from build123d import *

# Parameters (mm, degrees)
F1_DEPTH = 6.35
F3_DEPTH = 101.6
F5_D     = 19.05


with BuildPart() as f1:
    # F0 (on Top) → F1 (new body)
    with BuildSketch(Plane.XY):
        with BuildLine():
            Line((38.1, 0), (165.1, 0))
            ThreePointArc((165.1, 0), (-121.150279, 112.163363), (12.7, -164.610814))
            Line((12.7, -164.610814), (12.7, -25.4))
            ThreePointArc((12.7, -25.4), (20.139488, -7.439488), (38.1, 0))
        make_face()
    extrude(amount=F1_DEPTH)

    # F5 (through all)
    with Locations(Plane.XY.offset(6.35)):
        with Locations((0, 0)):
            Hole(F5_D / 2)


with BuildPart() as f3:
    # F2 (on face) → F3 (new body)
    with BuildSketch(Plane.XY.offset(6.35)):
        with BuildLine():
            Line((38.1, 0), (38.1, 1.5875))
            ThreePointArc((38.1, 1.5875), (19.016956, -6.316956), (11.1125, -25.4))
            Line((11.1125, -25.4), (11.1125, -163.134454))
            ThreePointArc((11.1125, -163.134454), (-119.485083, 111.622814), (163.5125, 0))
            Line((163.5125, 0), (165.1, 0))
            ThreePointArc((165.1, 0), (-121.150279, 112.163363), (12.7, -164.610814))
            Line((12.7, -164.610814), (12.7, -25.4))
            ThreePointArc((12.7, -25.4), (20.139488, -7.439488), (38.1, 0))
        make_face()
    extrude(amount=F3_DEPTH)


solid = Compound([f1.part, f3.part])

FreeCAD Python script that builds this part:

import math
import FreeCAD as App
import Part
import Sketcher
from FreeCAD import Vector
Q = App.Units.Quantity

doc = App.newDocument("Part")
params = doc.addObject("Spreadsheet::Sheet", "Params")
for row, (alias, value) in enumerate([
    ("sketch1_radius", "1 in"),
    ("sketch1_radius2", "6.5 in"),
    ("sketch1_width", "5 in"),
    ("pad1_length", "0.25 in"),
    ("sketch2_diameter", "0.75 in"),
    ("hole_diameter", "0.75 in"),
    ("sketch3_radius", "1 in"),
    ("sketch3_radius2", "6.5 in"),
    ("sketch3_radius3", "1.0625 in"),
    ("pad2_length", "4 in"),
], start=1):
    params.set(f"A{row}", alias)
    params.set(f"B{row}", "=" + value)
    params.setAlias(f"B{row}", alias)

body = doc.addObject("PartDesign::Body", "Body")

sketch1 = body.newObject("Sketcher::SketchObject", "Sketch")
sketch1.AttachmentSupport = (doc.getObject("XY_Plane"), [""])
sketch1.MapMode = "FlatFace"
sketch1.addGeometry([
    Part.LineSegment(Vector(38.1, 0, 0), Vector(165.1, 0, 0)),
    Part.ArcOfCircle(Part.Circle(Vector(0, 0, 0), Vector(0, 0, 1), 165.1), math.radians(0), math.radians(274.411726)),
    Part.LineSegment(Vector(12.7, -164.610814, 0), Vector(12.7, -25.4, 0)),
    Part.ArcOfCircle(Part.Circle(Vector(38.100001, -25.400001, 0), Vector(0, 0, 1), 25.400001), math.radians(90.000002), math.radians(179.999998)),
], False)
sketch1.addConstraint([
    Sketcher.Constraint("Coincident", 0, 2, 1, 1),
    Sketcher.Constraint("Coincident", 1, 2, 2, 1),
    Sketcher.Constraint("Tangent", 2, 2, 3, 2),
    Sketcher.Constraint("Tangent", 3, 1, 0, 1),
    Sketcher.Constraint("Horizontal", 0),
    Sketcher.Constraint("Vertical", 2),
    Sketcher.Constraint("Coincident", 1, 3, -1, 1),
    Sketcher.Constraint("PointOnObject", 0, 2, -1),
    Sketcher.Constraint("Radius", 3, Q("1 in")),
    Sketcher.Constraint("Radius", 1, Q("6.5 in")),
    Sketcher.Constraint("DistanceX", 0, 1, 0, 2, Q("5 in")),
])
sketch1.setExpression("Constraints[8]", "Params.sketch1_radius")
sketch1.setExpression("Constraints[9]", "Params.sketch1_radius2")
sketch1.setExpression("Constraints[10]", "Params.sketch1_width")
pad1 = body.newObject("PartDesign::Pad", "Pad")
pad1.Profile = sketch1
pad1.setExpression("Length", "Params.pad1_length")

sketch2 = body.newObject("Sketcher::SketchObject", "Sketch001")
sketch2.AttachmentSupport = (doc.getObject("XY_Plane"), [""])
sketch2.MapMode = "FlatFace"
sketch2.AttachmentOffset = App.Placement(Vector(0, 0, 0.25 * 25.4), App.Rotation())
sketch2.addGeometry(Part.Circle(Vector(0, 0, 0), Vector(0, 0, 1), 9.525), False)
sketch2.addConstraint([
    Sketcher.Constraint("Coincident", 0, 3, -1, 1),
    Sketcher.Constraint("Diameter", 0, Q("0.75 in")),
])
sketch2.setExpression("Constraints[1]", "Params.sketch2_diameter")
doc.recompute()
hole = body.newObject("PartDesign::Hole", "Hole")
hole.Profile = sketch2
hole.ThreadType = "None"
hole.setExpression("Diameter", "Params.hole_diameter")
hole.DepthType = "ThroughAll"
body2 = doc.addObject("PartDesign::Body", "Body001")

sketch3 = body2.newObject("Sketcher::SketchObject", "Sketch002")
sketch3.AttachmentSupport = (doc.getObject("XY_Plane001"), [""])
sketch3.MapMode = "FlatFace"
sketch3.AttachmentOffset = App.Placement(Vector(0, 0, 0.25 * 25.4), App.Rotation())
sketch3.addGeometry([
    Part.LineSegment(Vector(38.1, 0, 0), Vector(38.1, 1.5875, 0)),
    Part.ArcOfCircle(Part.Circle(Vector(38.100001, -25.400001, 0), Vector(0, 0, 1), 26.987501), math.radians(90.000002), math.radians(179.999998)),
    Part.LineSegment(Vector(11.1125, -25.4, 0), Vector(11.1125, -163.134454, 0)),
    Part.ArcOfCircle(Part.Circle(Vector(0, 0, 0), Vector(0, 0, 1), 163.5125), math.radians(0), math.radians(273.896892)),
    Part.LineSegment(Vector(163.5125, 0, 0), Vector(165.1, 0, 0)),
    Part.ArcOfCircle(Part.Circle(Vector(0, 0, 0), Vector(0, 0, 1), 165.1), math.radians(0), math.radians(274.411726)),
    Part.LineSegment(Vector(12.7, -164.610814, 0), Vector(12.7, -25.4, 0)),
    Part.ArcOfCircle(Part.Circle(Vector(38.100001, -25.400001, 0), Vector(0, 0, 1), 25.400001), math.radians(90.000002), math.radians(179.999998)),
], False)
sketch3.addConstraint([
    Sketcher.Constraint("Coincident", 0, 2, 1, 1),
    Sketcher.Constraint("Tangent", 1, 2, 2, 1),
    Sketcher.Constraint("Coincident", 2, 2, 3, 2),
    Sketcher.Constraint("Coincident", 3, 1, 4, 1),
    Sketcher.Constraint("Coincident", 4, 2, 5, 1),
    Sketcher.Constraint("Coincident", 5, 2, 6, 1),
    Sketcher.Constraint("Tangent", 6, 2, 7, 2),
    Sketcher.Constraint("Coincident", 7, 1, 0, 1),
    Sketcher.Constraint("Vertical", 0),
    Sketcher.Constraint("Vertical", 2),
    Sketcher.Constraint("Horizontal", 4),
    Sketcher.Constraint("Vertical", 6),
    Sketcher.Constraint("Coincident", 3, 3, -1, 1),
    Sketcher.Constraint("Coincident", 5, 3, -1, 1),
    Sketcher.Constraint("Coincident", 7, 3, 1, 3),
    Sketcher.Constraint("PointOnObject", 3, 1, -1),
    Sketcher.Constraint("PointOnObject", 7, 1, -1),
    Sketcher.Constraint("Vertical", 7, 3, 0, 2),
    Sketcher.Constraint("Equal", 4, 0),
    Sketcher.Constraint("Radius", 7, Q("1 in")),
    Sketcher.Constraint("Radius", 5, Q("6.5 in")),
    Sketcher.Constraint("Radius", 1, Q("1.0625 in")),
    Sketcher.Constraint("DistanceX", 1, 2, 3, 1, Q("6 in")),
])
sketch3.setExpression("Constraints[19]", "Params.sketch3_radius")
sketch3.setExpression("Constraints[20]", "Params.sketch3_radius2")
sketch3.setExpression("Constraints[21]", "Params.sketch3_radius3")
pad2 = body2.newObject("PartDesign::Pad", "Pad001")
pad2.Profile = sketch3
pad2.setExpression("Length", "Params.pad2_length")

doc.recompute()
